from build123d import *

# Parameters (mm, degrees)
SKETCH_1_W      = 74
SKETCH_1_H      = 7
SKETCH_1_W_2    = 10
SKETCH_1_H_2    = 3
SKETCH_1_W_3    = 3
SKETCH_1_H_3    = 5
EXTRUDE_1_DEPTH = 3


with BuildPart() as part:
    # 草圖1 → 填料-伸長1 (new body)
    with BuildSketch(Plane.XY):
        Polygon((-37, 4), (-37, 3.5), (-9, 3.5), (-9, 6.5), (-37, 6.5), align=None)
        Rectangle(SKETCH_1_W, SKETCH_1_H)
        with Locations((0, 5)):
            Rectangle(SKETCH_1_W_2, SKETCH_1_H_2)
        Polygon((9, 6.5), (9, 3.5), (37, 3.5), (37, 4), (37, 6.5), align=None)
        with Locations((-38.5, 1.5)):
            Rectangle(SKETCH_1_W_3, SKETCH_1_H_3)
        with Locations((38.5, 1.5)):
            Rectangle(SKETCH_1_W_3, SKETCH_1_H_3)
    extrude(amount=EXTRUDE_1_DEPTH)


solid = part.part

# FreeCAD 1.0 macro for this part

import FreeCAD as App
import Part
import Sketcher
from FreeCAD import Vector
Q = App.Units.Quantity

doc = App.newDocument("Part")
params = doc.addObject("Spreadsheet::Sheet", "Params")
for row, (alias, value) in enumerate([
    ("sketch1_width", "28 mm"),
    ("sketch1_width2", "3 mm"),
    ("sketch1_width3", "74 mm"),
    ("sketch1_width4", "4 mm"),
    ("sketch1_height", "5 mm"),
    ("pad1_length", "3 mm"),
], start=1):
    params.set(f"A{row}", alias)
    params.set(f"B{row}", "=" + value)
    params.setAlias(f"B{row}", alias)

body = doc.addObject("PartDesign::Body", "Body")

# Sketch on XY plane
sketch1 = body.newObject("Sketcher::SketchObject", "Sketch")
sketch1.AttachmentSupport = (doc.getObject("XY_Plane"), [""])
sketch1.MapMode = "FlatFace"
sketch1.addGeometry(Part.LineSegment(Vector(-9, 3.5, 0), Vector(-9, 6.5, 0)), False)
sketch1.addGeometry(Part.LineSegment(Vector(-9, 6.5, 0), Vector(-37, 6.5, 0)), False)
sketch1.addGeometry(Part.LineSegment(Vector(-37, 6.5, 0), Vector(-37, 4, 0)), False)
sketch1.addGeometry(Part.LineSegment(Vector(-37, 4, 0), Vector(-40, 4, 0)), False)
sketch1.addGeometry(Part.LineSegment(Vector(-40, 4, 0), Vector(-40, -1, 0)), False)
sketch1.addGeometry(Part.LineSegment(Vector(-40, -1, 0), Vector(-37, -1, 0)), False)
sketch1.addGeometry(Part.LineSegment(Vector(-37, -1, 0), Vector(-37, -3.5, 0)), False)
sketch1.addGeometry(Part.LineSegment(Vector(-37, -3.5, 0), Vector(37, -3.5, 0)), False)
sketch1.addGeometry(Part.LineSegment(Vector(37, -3.5, 0), Vector(37, -1, 0)), False)
sketch1.addGeometry(Part.LineSegment(Vector(37, -1, 0), Vector(40, -1, 0)), False)
sketch1.addGeometry(Part.LineSegment(Vector(40, -1, 0), Vector(40, 4, 0)), False)
sketch1.addGeometry(Part.LineSegment(Vector(40, 4, 0), Vector(37, 4, 0)), False)
sketch1.addGeometry(Part.LineSegment(Vector(37, 4, 0), Vector(37, 6.5, 0)), False)
sketch1.addGeometry(Part.LineSegment(Vector(37, 6.5, 0), Vector(9, 6.5, 0)), False)
sketch1.addGeometry(Part.LineSegment(Vector(9, 6.5, 0), Vector(9, 3.5, 0)), False)
sketch1.addGeometry(Part.LineSegment(Vector(9, 3.5, 0), Vector(5, 3.5, 0)), False)
sketch1.addGeometry(Part.LineSegment(Vector(5, 3.5, 0), Vector(5, 6.5, 0)), False)
sketch1.addGeometry(Part.LineSegment(Vector(5, 6.5, 0), Vector(-5, 6.5, 0)), False)
sketch1.addGeometry(Part.LineSegment(Vector(-5, 6.5, 0), Vector(-5, 3.5, 0)), False)
sketch1.addGeometry(Part.LineSegment(Vector(-5, 3.5, 0), Vector(-9, 3.5, 0)), False)
sketch1.addConstraint(Sketcher.Constraint("Coincident", 0, 2, 1, 1))
sketch1.addConstraint(Sketcher.Constraint("Coincident", 1, 2, 2, 1))
sketch1.addConstraint(Sketcher.Constraint("Coincident", 2, 2, 3, 1))
sketch1.addConstraint(Sketcher.Constraint("Coincident", 3, 2, 4, 1))
sketch1.addConstraint(Sketcher.Constraint("Coincident", 4, 2, 5, 1))
sketch1.addConstraint(Sketcher.Constraint("Coincident", 5, 2, 6, 1))
sketch1.addConstraint(Sketcher.Constraint("Coincident", 6, 2, 7, 1))
sketch1.addConstraint(Sketcher.Constraint("Coincident", 7, 2, 8, 1))
sketch1.addConstraint(Sketcher.Constraint("Coincident", 8, 2, 9, 1))
sketch1.addConstraint(Sketcher.Constraint("Coincident", 9, 2, 10, 1))
sketch1.addConstraint(Sketcher.Constraint("Coincident", 10, 2, 11, 1))
sketch1.addConstraint(Sketcher.Constraint("Coincident", 11, 2, 12, 1))
sketch1.addConstraint(Sketcher.Constraint("Coincident", 12, 2, 13, 1))
sketch1.addConstraint(Sketcher.Constraint("Coincident", 13, 2, 14, 1))
sketch1.addConstraint(Sketcher.Constraint("Coincident", 14, 2, 15, 1))
sketch1.addConstraint(Sketcher.Constraint("Coincident", 15, 2, 16, 1))
sketch1.addConstraint(Sketcher.Constraint("Coincident", 16, 2, 17, 1))
sketch1.addConstraint(Sketcher.Constraint("Coincident", 17, 2, 18, 1))
sketch1.addConstraint(Sketcher.Constraint("Coincident", 18, 2, 19, 1))
sketch1.addConstraint(Sketcher.Constraint("Coincident", 19, 2, 0, 1))
sketch1.addConstraint(Sketcher.Constraint("Vertical", 0))
sketch1.addConstraint(Sketcher.Constraint("Horizontal", 1))
sketch1.addConstraint(Sketcher.Constraint("Vertical", 2))
sketch1.addConstraint(Sketcher.Constraint("Horizontal", 3))
sketch1.addConstraint(Sketcher.Constraint("Vertical", 4))
sketch1.addConstraint(Sketcher.Constraint("Horizontal", 5))
sketch1.addConstraint(Sketcher.Constraint("Vertical", 6))
sketch1.addConstraint(Sketcher.Constraint("Horizontal", 7))
sketch1.addConstraint(Sketcher.Constraint("Vertical", 8))
sketch1.addConstraint(Sketcher.Constraint("Horizontal", 9))
sketch1.addConstraint(Sketcher.Constraint("Vertical", 10))
sketch1.addConstraint(Sketcher.Constraint("Horizontal", 11))
sketch1.addConstraint(Sketcher.Constraint("Vertical", 12))
sketch1.addConstraint(Sketcher.Constraint("Horizontal", 13))
sketch1.addConstraint(Sketcher.Constraint("Vertical", 14))
sketch1.addConstraint(Sketcher.Constraint("Horizontal", 15))
sketch1.addConstraint(Sketcher.Constraint("Vertical", 16))
sketch1.addConstraint(Sketcher.Constraint("Horizontal", 17))
sketch1.addConstraint(Sketcher.Constraint("Vertical", 18))
sketch1.addConstraint(Sketcher.Constraint("Horizontal", 19))
sketch1.addConstraint(Sketcher.Constraint("Symmetric", 5, 2, 8, 2, -2))
sketch1.addConstraint(Sketcher.Constraint("Symmetric", 3, 2, 10, 2, -2))
sketch1.addConstraint(Sketcher.Constraint("Symmetric", 1, 2, 12, 2, -2))
sketch1.addConstraint(Sketcher.Constraint("Symmetric", 15, 2, 18, 2, -2))
sketch1.addConstraint(Sketcher.Constraint("Horizontal", 13, 2, 16, 2))
sketch1.addConstraint(Sketcher.Constraint("Vertical", 2, 2, 5, 2))
sketch1.addConstraint(Sketcher.Constraint("Equal", 1, 13))
sketch1.addConstraint(Sketcher.Constraint("Equal", 11, 0))
sketch1.addConstraint(Sketcher.Constraint("Equal", 2, 6))
sketch1.addConstraint(Sketcher.Constraint("DistanceX", 1, 2, 1, 1, Q("28 mm")))
sketch1.addConstraint(Sketcher.Constraint("DistanceX", 3, 2, 3, 1, Q("3 mm")))
sketch1.addConstraint(Sketcher.Constraint("DistanceX", 7, 1, 7, 2, Q("74 mm")))
sketch1.addConstraint(Sketcher.Constraint("DistanceX", 15, 2, 15, 1, Q("4 mm")))
sketch1.addConstraint(Sketcher.Constraint("DistanceY", 4, 2, 4, 1, Q("5 mm")))
sketch1.addConstraint(Sketcher.Constraint("DistanceY", 2, 2, 2, 1, Q("2.5 mm")))
sketch1.addConstraint(Sketcher.Constraint("DistanceY", -1, 1, 2, 2, Q("4 mm")))
sketch1.setExpression("Constraints[49]", "Params.sketch1_width")
sketch1.setExpression("Constraints[50]", "Params.sketch1_width2")
sketch1.setExpression("Constraints[51]", "Params.sketch1_width3")
sketch1.setExpression("Constraints[52]", "Params.sketch1_width4")
sketch1.setExpression("Constraints[53]", "Params.sketch1_height")
pad1 = body.newObject("PartDesign::Pad", "Pad")
pad1.Profile = sketch1
pad1.setExpression("Length", "Params.pad1_length")

doc.recompute()
